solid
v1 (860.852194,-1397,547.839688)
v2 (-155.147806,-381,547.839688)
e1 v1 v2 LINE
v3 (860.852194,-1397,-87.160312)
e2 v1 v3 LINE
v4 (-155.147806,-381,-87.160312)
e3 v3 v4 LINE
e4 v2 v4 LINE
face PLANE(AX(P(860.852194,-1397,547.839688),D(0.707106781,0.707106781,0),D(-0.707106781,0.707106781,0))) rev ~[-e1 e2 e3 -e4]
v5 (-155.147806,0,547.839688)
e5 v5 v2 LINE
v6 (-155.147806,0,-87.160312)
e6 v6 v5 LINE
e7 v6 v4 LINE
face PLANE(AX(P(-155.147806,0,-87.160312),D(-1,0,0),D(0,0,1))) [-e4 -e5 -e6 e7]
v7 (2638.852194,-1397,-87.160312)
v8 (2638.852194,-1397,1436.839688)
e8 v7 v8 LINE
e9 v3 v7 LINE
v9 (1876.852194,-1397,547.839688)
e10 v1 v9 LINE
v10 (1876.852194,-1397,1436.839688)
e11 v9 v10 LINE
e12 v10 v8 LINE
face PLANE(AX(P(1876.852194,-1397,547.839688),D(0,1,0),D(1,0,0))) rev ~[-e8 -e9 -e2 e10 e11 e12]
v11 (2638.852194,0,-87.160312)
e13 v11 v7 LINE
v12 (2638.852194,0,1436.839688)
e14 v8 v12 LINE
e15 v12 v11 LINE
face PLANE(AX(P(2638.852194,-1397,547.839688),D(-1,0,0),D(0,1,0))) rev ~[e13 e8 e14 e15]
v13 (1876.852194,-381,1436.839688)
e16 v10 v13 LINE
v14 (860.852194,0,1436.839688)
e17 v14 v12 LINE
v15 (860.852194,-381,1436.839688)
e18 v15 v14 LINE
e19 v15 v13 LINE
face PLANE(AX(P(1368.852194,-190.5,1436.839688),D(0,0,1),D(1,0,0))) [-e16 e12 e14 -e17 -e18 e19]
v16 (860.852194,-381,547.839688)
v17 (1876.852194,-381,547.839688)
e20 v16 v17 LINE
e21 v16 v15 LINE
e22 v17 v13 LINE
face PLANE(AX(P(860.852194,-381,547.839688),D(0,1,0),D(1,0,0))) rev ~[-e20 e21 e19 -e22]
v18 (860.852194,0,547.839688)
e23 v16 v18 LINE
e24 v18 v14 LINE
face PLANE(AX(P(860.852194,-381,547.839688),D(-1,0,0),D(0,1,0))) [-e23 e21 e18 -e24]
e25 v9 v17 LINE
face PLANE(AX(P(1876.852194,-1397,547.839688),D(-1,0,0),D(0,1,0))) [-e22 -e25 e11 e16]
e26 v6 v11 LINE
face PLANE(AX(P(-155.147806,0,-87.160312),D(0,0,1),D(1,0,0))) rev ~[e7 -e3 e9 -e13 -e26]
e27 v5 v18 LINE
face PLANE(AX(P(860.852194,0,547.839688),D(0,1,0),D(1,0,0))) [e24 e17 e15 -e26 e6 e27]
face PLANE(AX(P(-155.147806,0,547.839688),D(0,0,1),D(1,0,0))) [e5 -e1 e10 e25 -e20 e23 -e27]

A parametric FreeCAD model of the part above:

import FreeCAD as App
import Part
import Sketcher
Q = App.Units.Quantity

doc = App.newDocument("Part")
body = doc.addObject("PartDesign::Body", "Body")

# Sketch on XZ plane
sketch1 = body.newObject("Sketcher::SketchObject", "Sketch")
sketch1.AttachmentSupport = (doc.getObject("XZ_Plane"), [""])
sketch1.MapMode = "FlatFace"
sketch1.addGeometry(Part.LineSegment(App.Vector(-155, 548, 0), App.Vector(-155, -87, 0)), False)
sketch1.addGeometry(Part.LineSegment(App.Vector(-155, -87, 0), App.Vector(2639, -87, 0)), False)
sketch1.addGeometry(Part.LineSegment(App.Vector(2639, -87, 0), App.Vector(2639, 548, 0)), False)
sketch1.addGeometry(Part.LineSegment(App.Vector(2639, 548, 0), App.Vector(-155, 548, 0)), False)
sketch1.addConstraint(Sketcher.Constraint("Coincident", 0, 2, 1, 1))
sketch1.addConstraint(Sketcher.Constraint("Coincident", 1, 2, 2, 1))
sketch1.addConstraint(Sketcher.Constraint("Coincident", 2, 2, 3, 1))
sketch1.addConstraint(Sketcher.Constraint("Coincident", 3, 2, 0, 1))
sketch1.addConstraint(Sketcher.Constraint("Vertical", 0))
sketch1.addConstraint(Sketcher.Constraint("Horizontal", 1))
sketch1.addConstraint(Sketcher.Constraint("Vertical", 2))
sketch1.addConstraint(Sketcher.Constraint("Horizontal", 3))
sketch1.addConstraint(Sketcher.Constraint("DistanceX", 1, 1, 1, 2, Q("110 in")))
sketch1.addConstraint(Sketcher.Constraint("DistanceY", 0, 2, 0, 1, Q("25 in")))
sketch1.addConstraint(Sketcher.Constraint("DistanceY", -1, 1, 2, 2, 547.839688))
sketch1.addConstraint(Sketcher.Constraint("DistanceX", 0, 2, -1, 1, 155.147806))
pad1 = body.newObject("PartDesign::Pad", "Pad")
pad1.Profile = sketch1
pad1.Length = Q("55 in")

# Sketch on XY plane
sketch2 = body.newObject("Sketcher::SketchObject", "Sketch001")
sketch2.AttachmentSupport = (doc.getObject("XY_Plane"), [""])
sketch2.MapMode = "FlatFace"
sketch2.AttachmentOffset = App.Placement(App.Vector(0, 0, 547.839688), App.Rotation())
sketch2.addGeometry(Part.LineSegment(App.Vector(1877, 0, 0), App.Vector(1877, -1397, 0)), False)
sketch2.addGeometry(Part.LineSegment(App.Vector(1877, -1397, 0), App.Vector(2639, -1397, 0)), False)
sketch2.addGeometry(Part.LineSegment(App.Vector(2639, -1397, 0), App.Vector(2639, 0, 0)), False)
sketch2.addGeometry(Part.LineSegment(App.Vector(2639, 0, 0), App.Vector(1877, 0, 0)), False)
sketch2.addConstraint(Sketcher.Constraint("Coincident", 0, 2, 1, 1))
sketch2.addConstraint(Sketcher.Constraint("Coincident", 1, 2, 2, 1))
sketch2.addConstraint(Sketcher.Constraint("Coincident", 2, 2, 3, 1))
sketch2.addConstraint(Sketcher.Constraint("Coincident", 3, 2, 0, 1))
sketch2.addConstraint(Sketcher.Constraint("Vertical", 0))
sketch2.addConstraint(Sketcher.Constraint("Horizontal", 1))
sketch2.addConstraint(Sketcher.Constraint("Vertical", 2))
sketch2.addConstraint(Sketcher.Constraint("Horizontal", 3))
sketch2.addConstraint(Sketcher.Constraint("PointOnObject", 2, 2, -1))
sketch2.addConstraint(Sketcher.Constraint("DistanceX", 1, 1, 1, 2, Q("30 in")))
sketch2.addConstraint(Sketcher.Constraint("DistanceY", 0, 2, 0, 1, Q("55 in")))
sketch2.addConstraint(Sketcher.Constraint("DistanceX", -1, 1, 0, 2, 1876.852194))
pad2 = body.newObject("PartDesign::Pad", "Pad001")
pad2.Profile = sketch2
pad2.Length = Q("35 in")

# Sketch on XY plane
sketch3 = body.newObject("Sketcher::SketchObject", "Sketch002")
sketch3.AttachmentSupport = (doc.getObject("XY_Plane"), [""])
sketch3.MapMode = "FlatFace"
sketch3.AttachmentOffset = App.Placement(App.Vector(0, 0, 547.839688), App.Rotation())
sketch3.addGeometry(Part.LineSegment(App.Vector(861, 0, 0), App.Vector(861, -381, 0)), False)
sketch3.addGeometry(Part.LineSegment(App.Vector(861, -381, 0), App.Vector(1877, -381, 0)), False)
sketch3.addGeometry(Part.LineSegment(App.Vector(1877, -381, 0), App.Vector(1877, 0, 0)), False)
sketch3.addGeometry(Part.LineSegment(App.Vector(1877, 0, 0), App.Vector(861, 0, 0)), False)
sketch3.addConstraint(Sketcher.Constraint("Coincident", 0, 2, 1, 1))
sketch3.addConstraint(Sketcher.Constraint("Coincident", 1, 2, 2, 1))
sketch3.addConstraint(Sketcher.Constraint("Coincident", 2, 2, 3, 1))
sketch3.addConstraint(Sketcher.Constraint("Coincident", 3, 2, 0, 1))
sketch3.addConstraint(Sketcher.Constraint("Vertical", 0))
sketch3.addConstraint(Sketcher.Constraint("Horizontal", 1))
sketch3.addConstraint(Sketcher.Constraint("Vertical", 2))
sketch3.addConstraint(Sketcher.Constraint("Horizontal", 3))
sketch3.addConstraint(Sketcher.Constraint("PointOnObject", 2, 2, -1))
sketch3.addConstraint(Sketcher.Constraint("DistanceX", 1, 1, 1, 2, Q("40 in")))
sketch3.addConstraint(Sketcher.Constraint("DistanceY", 0, 2, 0, 1, Q("15 in")))
sketch3.addConstraint(Sketcher.Constraint("DistanceX", -1, 1, 0, 2, 860.852194))
pad3 = body.newObject("PartDesign::Pad", "Pad002")
pad3.Profile = sketch3
pad3.Length = Q("35 in")

# Sketch on XY plane
sketch4 = body.newObject("Sketcher::SketchObject", "Sketch003")
sketch4.AttachmentSupport = (doc.getObject("XY_Plane"), [""])
sketch4.MapMode = "FlatFace"
sketch4.AttachmentOffset = App.Placement(App.Vector(0, 0, 547.839688), App.Rotation())
sketch4.addGeometry(Part.LineSegment(App.Vector(-155, -1397, 0), App.Vector(861, -1397, 0)), False)
sketch4.addGeometry(Part.LineSegment(App.Vector(861, -1397, 0), App.Vector(-155, -381, 0)), False)
sketch4.addGeometry(Part.LineSegment(App.Vector(-155, -381, 0), App.Vector(-155, -1397, 0)), False)
sketch4.addConstraint(Sketcher.Constraint("Coincident", 0, 2, 1, 1))
sketch4.addConstraint(Sketcher.Constraint("Coincident", 1, 2, 2, 1))
sketch4.addConstraint(Sketcher.Constraint("Coincident", 2, 2, 0, 1))
sketch4.addConstraint(Sketcher.Constraint("Horizontal", 0))
sketch4.addConstraint(Sketcher.Constraint("Vertical", 2))
sketch4.addConstraint(Sketcher.Constraint("Equal", 0, 2))
sketch4.addConstraint(Sketcher.Constraint("DistanceX", 0, 1, 0, 2, Q("40 in")))
sketch4.addConstraint(Sketcher.Constraint("DistanceY", 0, 2, -1, 1, Q("55 in")))
sketch4.addConstraint(Sketcher.Constraint("DistanceX", -1, 1, 0, 2, 860.852194))
pocket1 = body.newObject("PartDesign::Pocket", "Pocket")
pocket1.Profile = sketch4
pocket1.Length = Q("86.4 in")

doc.recompute()
